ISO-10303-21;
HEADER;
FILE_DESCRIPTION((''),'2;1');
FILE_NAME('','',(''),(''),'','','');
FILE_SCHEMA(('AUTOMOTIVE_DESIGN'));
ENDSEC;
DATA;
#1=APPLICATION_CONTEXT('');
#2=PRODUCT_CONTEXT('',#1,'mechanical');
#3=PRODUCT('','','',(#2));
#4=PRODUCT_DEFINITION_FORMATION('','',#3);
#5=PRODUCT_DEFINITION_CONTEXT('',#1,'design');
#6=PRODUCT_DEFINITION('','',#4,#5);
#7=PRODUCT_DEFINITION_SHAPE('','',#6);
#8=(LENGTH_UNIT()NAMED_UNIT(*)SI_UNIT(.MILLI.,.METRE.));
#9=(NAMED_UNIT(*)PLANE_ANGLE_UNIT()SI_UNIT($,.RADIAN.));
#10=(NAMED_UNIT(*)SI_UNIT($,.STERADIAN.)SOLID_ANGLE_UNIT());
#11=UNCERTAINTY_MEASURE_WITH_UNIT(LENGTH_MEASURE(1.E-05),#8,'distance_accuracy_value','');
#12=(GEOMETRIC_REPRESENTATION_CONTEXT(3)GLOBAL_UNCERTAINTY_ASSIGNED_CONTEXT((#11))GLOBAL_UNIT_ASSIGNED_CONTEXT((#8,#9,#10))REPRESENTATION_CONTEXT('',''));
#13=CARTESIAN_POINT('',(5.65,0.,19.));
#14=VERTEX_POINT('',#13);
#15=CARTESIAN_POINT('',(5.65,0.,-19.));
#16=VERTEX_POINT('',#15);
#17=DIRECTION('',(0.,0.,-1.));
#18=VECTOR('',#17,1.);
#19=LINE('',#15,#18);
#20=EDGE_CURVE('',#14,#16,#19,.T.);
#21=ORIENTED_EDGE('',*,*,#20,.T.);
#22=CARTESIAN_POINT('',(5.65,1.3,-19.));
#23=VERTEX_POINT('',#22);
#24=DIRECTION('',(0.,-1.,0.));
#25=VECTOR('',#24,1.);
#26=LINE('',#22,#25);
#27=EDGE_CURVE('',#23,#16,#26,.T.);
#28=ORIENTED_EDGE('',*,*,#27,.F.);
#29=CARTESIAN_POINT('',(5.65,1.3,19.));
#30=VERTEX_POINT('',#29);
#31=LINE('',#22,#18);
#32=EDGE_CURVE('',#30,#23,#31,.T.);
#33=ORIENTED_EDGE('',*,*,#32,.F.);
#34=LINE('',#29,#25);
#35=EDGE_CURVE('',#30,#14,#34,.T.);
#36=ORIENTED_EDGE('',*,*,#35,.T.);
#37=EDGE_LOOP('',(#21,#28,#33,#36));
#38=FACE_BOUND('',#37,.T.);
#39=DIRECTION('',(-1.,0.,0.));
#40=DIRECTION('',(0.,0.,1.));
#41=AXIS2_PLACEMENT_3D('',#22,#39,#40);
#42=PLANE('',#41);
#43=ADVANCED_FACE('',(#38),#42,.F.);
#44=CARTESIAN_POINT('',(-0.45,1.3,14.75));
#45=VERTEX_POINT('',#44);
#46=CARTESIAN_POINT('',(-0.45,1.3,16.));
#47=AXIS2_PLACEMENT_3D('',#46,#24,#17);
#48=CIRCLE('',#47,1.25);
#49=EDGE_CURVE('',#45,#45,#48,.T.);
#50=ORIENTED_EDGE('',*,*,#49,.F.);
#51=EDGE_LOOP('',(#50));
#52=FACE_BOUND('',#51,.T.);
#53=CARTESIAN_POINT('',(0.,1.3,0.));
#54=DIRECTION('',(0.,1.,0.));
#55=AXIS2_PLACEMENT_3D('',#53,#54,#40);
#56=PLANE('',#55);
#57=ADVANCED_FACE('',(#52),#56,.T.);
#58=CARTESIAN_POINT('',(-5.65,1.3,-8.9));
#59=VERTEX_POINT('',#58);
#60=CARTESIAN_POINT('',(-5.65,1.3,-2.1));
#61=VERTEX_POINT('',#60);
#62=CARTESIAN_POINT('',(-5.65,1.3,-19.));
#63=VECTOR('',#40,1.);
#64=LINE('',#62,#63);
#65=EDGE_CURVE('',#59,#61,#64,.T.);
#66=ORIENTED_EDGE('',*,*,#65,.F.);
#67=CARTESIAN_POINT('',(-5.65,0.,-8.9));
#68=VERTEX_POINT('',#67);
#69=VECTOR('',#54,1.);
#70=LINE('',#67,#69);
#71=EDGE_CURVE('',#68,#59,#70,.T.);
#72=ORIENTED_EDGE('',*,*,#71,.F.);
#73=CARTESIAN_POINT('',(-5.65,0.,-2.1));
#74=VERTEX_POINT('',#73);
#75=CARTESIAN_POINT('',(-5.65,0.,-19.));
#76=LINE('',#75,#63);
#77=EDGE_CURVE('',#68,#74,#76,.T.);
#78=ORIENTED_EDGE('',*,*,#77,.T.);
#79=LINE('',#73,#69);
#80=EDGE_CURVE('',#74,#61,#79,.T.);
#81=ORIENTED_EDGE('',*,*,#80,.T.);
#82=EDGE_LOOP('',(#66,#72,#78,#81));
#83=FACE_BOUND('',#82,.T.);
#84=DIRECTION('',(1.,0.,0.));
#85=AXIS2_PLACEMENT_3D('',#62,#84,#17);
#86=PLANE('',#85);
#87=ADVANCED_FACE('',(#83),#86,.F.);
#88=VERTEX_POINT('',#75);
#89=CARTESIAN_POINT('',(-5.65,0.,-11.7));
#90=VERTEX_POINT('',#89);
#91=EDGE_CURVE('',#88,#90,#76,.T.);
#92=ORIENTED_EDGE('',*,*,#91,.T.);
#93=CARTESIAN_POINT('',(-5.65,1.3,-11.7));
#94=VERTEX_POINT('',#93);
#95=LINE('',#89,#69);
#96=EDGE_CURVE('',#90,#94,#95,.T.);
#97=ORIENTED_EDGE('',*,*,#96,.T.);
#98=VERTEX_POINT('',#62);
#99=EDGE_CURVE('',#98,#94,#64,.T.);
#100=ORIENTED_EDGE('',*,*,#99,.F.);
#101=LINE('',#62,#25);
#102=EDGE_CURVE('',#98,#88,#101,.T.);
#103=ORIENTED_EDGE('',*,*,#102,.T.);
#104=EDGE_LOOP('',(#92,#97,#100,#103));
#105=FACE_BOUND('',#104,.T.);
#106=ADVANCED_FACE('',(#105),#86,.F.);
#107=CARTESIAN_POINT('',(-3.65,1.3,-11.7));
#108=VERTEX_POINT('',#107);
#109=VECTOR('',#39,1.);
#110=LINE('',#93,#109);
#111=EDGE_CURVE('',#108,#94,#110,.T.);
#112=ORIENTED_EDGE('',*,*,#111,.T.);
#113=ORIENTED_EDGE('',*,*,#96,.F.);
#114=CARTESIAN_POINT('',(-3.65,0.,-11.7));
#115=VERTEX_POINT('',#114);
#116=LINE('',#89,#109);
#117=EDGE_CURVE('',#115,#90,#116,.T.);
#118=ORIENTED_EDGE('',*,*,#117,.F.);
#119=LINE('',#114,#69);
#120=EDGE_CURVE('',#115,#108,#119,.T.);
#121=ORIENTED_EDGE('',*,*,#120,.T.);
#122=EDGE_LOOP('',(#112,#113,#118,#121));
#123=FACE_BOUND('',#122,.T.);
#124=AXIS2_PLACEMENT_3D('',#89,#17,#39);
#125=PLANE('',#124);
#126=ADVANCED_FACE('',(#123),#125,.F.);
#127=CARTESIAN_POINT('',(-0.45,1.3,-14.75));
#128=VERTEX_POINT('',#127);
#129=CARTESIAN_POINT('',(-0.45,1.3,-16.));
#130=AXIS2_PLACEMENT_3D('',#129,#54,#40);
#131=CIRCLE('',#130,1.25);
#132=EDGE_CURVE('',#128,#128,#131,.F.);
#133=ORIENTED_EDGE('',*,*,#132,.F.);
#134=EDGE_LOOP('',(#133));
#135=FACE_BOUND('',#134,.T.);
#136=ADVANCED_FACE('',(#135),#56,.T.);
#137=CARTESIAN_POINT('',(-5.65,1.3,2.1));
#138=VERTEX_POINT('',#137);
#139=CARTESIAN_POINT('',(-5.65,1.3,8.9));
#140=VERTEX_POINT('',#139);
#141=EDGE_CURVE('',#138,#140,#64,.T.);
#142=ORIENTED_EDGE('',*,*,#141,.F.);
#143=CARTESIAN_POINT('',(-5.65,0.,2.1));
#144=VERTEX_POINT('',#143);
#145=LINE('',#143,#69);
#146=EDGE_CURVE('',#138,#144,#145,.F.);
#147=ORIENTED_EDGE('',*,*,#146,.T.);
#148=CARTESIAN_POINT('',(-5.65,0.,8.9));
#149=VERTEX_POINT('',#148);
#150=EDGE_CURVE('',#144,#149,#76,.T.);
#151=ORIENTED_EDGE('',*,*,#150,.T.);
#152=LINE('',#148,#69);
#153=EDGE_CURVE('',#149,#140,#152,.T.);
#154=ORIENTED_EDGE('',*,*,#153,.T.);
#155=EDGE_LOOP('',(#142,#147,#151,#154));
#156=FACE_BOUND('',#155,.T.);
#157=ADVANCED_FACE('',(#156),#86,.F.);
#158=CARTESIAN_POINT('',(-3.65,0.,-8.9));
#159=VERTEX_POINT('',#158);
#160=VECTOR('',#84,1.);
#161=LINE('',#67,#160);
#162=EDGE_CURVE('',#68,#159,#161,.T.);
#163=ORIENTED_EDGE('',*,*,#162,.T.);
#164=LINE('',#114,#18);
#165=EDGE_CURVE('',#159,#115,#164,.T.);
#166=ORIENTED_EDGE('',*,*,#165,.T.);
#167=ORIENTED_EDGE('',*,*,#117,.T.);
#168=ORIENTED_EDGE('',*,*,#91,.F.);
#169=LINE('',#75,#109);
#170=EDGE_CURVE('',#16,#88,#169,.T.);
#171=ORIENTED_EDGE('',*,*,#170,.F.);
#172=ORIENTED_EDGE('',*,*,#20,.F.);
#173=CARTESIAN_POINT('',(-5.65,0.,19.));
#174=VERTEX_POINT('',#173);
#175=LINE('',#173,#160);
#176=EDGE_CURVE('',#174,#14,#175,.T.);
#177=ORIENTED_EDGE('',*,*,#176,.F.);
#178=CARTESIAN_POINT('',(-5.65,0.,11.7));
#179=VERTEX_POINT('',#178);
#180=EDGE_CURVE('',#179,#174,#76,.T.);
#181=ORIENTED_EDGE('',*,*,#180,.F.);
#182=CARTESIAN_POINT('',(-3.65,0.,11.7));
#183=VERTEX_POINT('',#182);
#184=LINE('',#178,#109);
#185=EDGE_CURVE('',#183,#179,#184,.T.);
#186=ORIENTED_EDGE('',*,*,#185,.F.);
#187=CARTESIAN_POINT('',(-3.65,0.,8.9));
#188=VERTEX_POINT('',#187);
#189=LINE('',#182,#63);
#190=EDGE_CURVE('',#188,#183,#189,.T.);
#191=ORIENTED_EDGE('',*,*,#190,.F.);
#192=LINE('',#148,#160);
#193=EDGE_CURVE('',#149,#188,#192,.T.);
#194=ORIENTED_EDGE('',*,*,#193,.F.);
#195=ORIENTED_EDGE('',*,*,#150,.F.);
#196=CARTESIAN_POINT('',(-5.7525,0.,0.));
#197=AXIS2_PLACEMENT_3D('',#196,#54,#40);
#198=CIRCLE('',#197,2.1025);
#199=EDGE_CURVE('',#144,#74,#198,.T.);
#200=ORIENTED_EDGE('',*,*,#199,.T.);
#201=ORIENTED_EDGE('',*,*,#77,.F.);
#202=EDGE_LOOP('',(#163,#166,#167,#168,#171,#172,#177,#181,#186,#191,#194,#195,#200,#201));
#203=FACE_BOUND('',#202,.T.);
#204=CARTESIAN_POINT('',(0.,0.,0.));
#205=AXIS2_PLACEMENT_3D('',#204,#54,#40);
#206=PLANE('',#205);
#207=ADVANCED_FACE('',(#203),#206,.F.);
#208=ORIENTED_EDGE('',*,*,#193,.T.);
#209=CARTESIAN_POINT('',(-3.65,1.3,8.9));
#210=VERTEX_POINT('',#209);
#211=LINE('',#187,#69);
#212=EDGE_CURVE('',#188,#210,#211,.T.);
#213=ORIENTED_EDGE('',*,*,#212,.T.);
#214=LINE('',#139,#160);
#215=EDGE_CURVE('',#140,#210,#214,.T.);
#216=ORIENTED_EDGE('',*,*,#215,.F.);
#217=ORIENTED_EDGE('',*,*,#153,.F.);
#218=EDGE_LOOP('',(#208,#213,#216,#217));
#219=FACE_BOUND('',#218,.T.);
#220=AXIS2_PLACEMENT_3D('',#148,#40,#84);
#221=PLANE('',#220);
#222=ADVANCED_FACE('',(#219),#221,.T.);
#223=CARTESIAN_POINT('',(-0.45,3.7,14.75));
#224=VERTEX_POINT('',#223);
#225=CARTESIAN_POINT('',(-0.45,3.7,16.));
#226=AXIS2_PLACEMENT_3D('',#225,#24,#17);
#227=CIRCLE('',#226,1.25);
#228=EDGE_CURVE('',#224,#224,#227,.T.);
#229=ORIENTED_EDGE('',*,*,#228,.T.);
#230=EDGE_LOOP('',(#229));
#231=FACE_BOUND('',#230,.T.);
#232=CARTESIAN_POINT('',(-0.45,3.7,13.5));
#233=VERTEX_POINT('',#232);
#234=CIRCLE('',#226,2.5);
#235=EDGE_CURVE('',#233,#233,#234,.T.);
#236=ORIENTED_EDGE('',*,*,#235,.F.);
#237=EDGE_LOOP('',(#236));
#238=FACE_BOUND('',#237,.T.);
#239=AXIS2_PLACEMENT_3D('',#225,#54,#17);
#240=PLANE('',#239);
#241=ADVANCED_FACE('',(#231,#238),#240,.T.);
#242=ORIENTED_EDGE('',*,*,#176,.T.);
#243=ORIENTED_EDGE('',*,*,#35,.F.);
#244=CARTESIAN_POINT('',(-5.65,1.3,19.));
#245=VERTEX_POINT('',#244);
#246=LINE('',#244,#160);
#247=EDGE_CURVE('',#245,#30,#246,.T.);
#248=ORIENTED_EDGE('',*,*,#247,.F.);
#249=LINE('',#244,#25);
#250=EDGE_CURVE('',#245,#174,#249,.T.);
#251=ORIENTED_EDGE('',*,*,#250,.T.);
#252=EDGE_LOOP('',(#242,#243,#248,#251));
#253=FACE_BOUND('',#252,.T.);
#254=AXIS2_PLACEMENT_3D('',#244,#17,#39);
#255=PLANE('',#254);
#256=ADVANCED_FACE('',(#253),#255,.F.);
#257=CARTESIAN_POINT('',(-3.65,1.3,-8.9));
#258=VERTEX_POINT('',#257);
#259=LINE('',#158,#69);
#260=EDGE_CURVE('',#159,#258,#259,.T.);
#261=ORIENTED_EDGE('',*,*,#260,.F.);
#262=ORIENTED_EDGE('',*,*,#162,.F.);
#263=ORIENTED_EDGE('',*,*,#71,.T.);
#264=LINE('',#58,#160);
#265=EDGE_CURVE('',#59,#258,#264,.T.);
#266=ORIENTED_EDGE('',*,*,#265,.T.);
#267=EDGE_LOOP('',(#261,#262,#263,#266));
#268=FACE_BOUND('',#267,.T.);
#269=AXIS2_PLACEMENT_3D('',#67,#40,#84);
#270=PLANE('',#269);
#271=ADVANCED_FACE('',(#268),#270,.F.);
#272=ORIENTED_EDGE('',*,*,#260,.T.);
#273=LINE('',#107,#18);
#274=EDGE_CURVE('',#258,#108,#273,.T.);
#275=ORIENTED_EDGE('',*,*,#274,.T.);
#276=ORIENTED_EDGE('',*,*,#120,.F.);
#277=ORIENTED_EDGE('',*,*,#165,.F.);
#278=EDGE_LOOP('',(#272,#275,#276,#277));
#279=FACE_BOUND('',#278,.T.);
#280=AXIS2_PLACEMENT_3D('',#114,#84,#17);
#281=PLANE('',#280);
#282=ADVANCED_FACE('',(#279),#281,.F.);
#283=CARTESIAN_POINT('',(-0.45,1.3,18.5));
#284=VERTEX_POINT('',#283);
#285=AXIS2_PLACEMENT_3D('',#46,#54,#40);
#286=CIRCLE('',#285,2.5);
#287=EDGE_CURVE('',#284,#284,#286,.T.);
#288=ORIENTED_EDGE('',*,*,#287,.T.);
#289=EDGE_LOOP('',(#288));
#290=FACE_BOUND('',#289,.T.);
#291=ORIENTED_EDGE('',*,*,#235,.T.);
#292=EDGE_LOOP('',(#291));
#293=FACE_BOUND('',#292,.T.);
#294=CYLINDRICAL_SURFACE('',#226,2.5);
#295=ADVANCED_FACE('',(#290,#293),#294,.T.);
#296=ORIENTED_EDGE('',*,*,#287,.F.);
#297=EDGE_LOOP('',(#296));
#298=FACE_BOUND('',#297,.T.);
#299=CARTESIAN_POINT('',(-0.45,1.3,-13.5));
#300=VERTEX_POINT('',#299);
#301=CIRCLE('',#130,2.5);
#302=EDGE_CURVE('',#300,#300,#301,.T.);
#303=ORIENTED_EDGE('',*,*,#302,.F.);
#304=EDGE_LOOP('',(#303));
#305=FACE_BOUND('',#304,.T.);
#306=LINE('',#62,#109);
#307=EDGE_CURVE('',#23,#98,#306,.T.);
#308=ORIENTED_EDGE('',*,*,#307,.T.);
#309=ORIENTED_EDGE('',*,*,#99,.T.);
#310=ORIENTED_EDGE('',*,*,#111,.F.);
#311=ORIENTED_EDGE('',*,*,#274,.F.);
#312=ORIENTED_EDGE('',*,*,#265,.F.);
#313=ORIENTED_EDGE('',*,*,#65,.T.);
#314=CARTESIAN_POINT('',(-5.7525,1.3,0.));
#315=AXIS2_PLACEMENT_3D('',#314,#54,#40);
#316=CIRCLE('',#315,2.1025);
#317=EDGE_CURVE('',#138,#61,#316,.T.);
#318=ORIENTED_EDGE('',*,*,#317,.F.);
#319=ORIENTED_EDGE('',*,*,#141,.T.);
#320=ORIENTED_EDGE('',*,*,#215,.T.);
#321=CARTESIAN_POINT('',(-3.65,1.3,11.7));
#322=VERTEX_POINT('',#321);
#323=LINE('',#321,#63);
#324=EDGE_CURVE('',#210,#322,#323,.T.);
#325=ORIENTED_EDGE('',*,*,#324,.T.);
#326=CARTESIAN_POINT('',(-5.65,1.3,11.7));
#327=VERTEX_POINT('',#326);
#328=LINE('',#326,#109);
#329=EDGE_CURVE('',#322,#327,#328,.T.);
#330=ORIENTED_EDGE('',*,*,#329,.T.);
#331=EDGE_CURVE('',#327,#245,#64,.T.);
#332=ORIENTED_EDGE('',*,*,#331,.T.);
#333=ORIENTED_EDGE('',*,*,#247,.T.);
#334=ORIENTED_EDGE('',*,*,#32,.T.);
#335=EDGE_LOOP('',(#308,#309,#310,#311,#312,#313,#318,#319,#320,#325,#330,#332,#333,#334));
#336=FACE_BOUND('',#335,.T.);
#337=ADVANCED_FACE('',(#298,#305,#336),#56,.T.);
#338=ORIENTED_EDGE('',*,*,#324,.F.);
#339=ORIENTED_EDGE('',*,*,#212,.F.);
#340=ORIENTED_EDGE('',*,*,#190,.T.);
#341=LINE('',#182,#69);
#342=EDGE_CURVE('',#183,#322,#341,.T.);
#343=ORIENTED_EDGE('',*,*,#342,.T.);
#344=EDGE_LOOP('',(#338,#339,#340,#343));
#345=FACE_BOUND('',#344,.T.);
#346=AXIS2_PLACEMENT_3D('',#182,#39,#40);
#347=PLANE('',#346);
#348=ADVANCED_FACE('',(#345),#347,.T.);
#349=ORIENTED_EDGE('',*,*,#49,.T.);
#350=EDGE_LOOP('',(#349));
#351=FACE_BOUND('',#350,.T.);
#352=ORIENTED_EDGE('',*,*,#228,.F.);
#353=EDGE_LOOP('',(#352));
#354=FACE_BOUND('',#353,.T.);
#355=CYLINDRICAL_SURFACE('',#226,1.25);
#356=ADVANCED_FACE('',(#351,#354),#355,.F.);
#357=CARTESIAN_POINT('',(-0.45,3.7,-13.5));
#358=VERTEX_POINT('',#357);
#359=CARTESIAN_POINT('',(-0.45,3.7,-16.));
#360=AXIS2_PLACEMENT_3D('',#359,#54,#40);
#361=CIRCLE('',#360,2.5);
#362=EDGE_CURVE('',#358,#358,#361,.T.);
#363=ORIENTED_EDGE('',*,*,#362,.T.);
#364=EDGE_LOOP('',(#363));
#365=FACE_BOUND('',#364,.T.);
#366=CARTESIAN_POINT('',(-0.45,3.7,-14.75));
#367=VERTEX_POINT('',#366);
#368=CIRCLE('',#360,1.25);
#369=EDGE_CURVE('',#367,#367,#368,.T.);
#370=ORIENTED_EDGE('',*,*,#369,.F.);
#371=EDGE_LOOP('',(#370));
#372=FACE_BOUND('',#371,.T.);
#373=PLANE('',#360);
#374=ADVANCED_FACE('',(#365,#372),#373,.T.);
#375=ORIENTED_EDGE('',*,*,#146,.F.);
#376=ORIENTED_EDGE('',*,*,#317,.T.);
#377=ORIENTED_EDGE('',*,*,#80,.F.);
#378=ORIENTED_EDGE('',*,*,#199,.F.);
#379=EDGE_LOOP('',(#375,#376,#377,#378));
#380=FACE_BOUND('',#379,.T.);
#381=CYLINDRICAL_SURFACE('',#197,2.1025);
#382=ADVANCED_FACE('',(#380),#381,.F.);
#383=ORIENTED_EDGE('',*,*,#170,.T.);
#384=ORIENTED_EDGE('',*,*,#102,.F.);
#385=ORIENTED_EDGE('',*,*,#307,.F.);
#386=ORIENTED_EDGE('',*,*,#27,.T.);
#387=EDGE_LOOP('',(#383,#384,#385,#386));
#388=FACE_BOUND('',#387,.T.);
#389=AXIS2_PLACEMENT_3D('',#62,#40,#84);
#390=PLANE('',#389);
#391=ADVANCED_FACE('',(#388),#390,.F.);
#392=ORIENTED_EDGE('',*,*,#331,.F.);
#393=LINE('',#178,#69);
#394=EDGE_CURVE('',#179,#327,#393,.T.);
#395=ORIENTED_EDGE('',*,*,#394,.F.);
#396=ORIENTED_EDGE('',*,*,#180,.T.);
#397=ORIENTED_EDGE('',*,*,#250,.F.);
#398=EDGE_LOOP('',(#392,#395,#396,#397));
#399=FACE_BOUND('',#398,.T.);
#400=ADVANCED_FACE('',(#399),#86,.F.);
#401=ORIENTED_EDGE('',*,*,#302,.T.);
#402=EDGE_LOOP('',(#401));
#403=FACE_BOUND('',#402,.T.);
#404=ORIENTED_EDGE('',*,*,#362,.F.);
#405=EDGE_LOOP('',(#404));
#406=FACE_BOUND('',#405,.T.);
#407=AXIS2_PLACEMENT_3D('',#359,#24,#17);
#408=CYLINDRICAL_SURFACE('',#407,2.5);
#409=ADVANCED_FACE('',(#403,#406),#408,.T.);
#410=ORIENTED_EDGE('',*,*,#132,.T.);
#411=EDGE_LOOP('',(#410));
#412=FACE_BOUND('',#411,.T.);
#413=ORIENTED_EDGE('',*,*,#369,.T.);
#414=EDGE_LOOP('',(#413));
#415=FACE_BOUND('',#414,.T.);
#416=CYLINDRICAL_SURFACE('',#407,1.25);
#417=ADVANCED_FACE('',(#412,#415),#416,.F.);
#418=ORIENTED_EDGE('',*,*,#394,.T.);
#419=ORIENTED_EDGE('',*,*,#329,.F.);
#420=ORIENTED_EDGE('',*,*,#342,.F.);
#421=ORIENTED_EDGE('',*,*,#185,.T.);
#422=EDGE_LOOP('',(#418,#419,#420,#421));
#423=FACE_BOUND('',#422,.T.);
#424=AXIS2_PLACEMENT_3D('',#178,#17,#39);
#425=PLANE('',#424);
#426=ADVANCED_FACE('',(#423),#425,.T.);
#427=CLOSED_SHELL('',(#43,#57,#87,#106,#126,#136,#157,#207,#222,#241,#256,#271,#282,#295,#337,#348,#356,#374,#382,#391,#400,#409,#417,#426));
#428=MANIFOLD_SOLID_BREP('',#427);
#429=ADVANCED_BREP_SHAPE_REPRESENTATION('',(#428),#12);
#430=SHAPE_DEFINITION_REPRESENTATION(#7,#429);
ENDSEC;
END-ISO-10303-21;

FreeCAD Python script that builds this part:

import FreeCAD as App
import Part
import Sketcher

V = App.Vector

doc = App.newDocument("Part")
params = doc.addObject("Spreadsheet::Sheet", "Params")
for row, (alias, value) in enumerate([
    ("sketch1_height", "38 mm"),
    ("sketch1_width", "11.3 mm"),
    ("pad1_length", "1.3 mm"),
    ("sketch2_width", "2 mm"),
    ("sketch2_height", "2.8 mm"),
    ("sketch4_diameter", "5 mm"),
    ("sketch4_diameter2", "2.5 mm"),
    ("pad2_length", "2.4 mm"),
], start=1):
    params.set(f"A{row}", alias)
    params.set(f"B{row}", "=" + value)
    params.setAlias(f"B{row}", alias)

body = doc.addObject("PartDesign::Body", "Body")

# Sketch on XZ plane
sketch1 = body.newObject("Sketcher::SketchObject", "Sketch")
sketch1.AttachmentSupport = (doc.getObject("XZ_Plane"), [""])
sketch1.MapMode = "FlatFace"
sketch1.addGeometry([
    Part.LineSegment(V(-6, -19, 0), V(-6, 19, 0)),
    Part.LineSegment(V(-6, 19, 0), V(6, 19, 0)),
    Part.LineSegment(V(6, 19, 0), V(6, -19, 0)),
    Part.LineSegment(V(6, -19, 0), V(-6, -19, 0)),
], False)
sketch1.addConstraint([
    Sketcher.Constraint("Coincident", 0, 2, 1, 1),
    Sketcher.Constraint("Coincident", 1, 2, 2, 1),
    Sketcher.Constraint("Coincident", 2, 2, 3, 1),
    Sketcher.Constraint("Coincident", 3, 2, 0, 1),
    Sketcher.Constraint("Vertical", 0),
    Sketcher.Constraint("Horizontal", 1),
    Sketcher.Constraint("Vertical", 2),
    Sketcher.Constraint("Horizontal", 3),
    Sketcher.Constraint("Symmetric", 0, 2, 2, 2, -1, 1),
    Sketcher.Constraint("DistanceY", 0, 1, 0, 2, 38.0),
    Sketcher.Constraint("DistanceX", 1, 1, 1, 2, 11.3),
])
sketch1.setExpression("Constraints[9]", "Params.sketch1_height")
sketch1.setExpression("Constraints[10]", "Params.sketch1_width")
pad1 = body.newObject("PartDesign::Pad", "Pad")
pad1.Profile = sketch1
pad1.setExpression("Length", "Params.pad1_length")
pad1.Reversed = True

# Sketch on XZ plane
sketch2 = body.newObject("Sketcher::SketchObject", "Sketch001")
sketch2.AttachmentSupport = (doc.getObject("XZ_Plane"), [""])
sketch2.MapMode = "FlatFace"
sketch2.AttachmentOffset = App.Placement(V(0, 0, -1.3), App.Rotation())
sketch2.addGeometry([
    Part.LineSegment(V(-5.7, -11.7, 0), V(-5.7, -8.9, 0)),
    Part.LineSegment(V(-5.7, -8.9, 0), V(-3.6, -8.9, 0)),
    Part.LineSegment(V(-3.6, -8.9, 0), V(-3.6, -11.7, 0)),
    Part.LineSegment(V(-3.6, -11.7, 0), V(-5.7, -11.7, 0)),
], False)
sketch2.addConstraint([
    Sketcher.Constraint("Coincident", 0, 2, 1, 1),
    Sketcher.Constraint("Coincident", 1, 2, 2, 1),
    Sketcher.Constraint("Coincident", 2, 2, 3, 1),
    Sketcher.Constraint("Coincident", 3, 2, 0, 1),
    Sketcher.Constraint("Vertical", 0),
    Sketcher.Constraint("Horizontal", 1),
    Sketcher.Constraint("Vertical", 2),
    Sketcher.Constraint("Horizontal", 3),
    Sketcher.Constraint("DistanceX", 1, 1, 1, 2, 2.0),
    Sketcher.Constraint("DistanceY", 0, 1, 0, 2, 2.8),
    Sketcher.Constraint("DistanceY", 0, 2, -1, 1, 8.9),
    Sketcher.Constraint("DistanceX", 0, 2, -1, 1, 5.65),
])
sketch2.setExpression("Constraints[8]", "Params.sketch2_width")
sketch2.setExpression("Constraints[9]", "Params.sketch2_height")
pocket1 = body.newObject("PartDesign::Pocket", "Pocket")
pocket1.Profile = sketch2
pocket1.Type = "ThroughAll"
pocket1.Reversed = True
doc.recompute()

mirrored = body.newObject("PartDesign::Mirrored", "Mirrored")
mirrored.Originals = [pocket1]
mirrored.MirrorPlane = (doc.getObject("XY_Plane"), [""])
body.Tip = mirrored

# Sketch on XZ plane
sketch3 = body.newObject("Sketcher::SketchObject", "Sketch002")
sketch3.AttachmentSupport = (doc.getObject("XZ_Plane"), [""])
sketch3.MapMode = "FlatFace"
sketch3.AttachmentOffset = App.Placement(V(0, 0, -1.3), App.Rotation())
sketch3.addGeometry(Part.Circle(V(-5.8, 0, 0), V(0, 0, 1), 2.1), False)
sketch3.addConstraint([
    Sketcher.Constraint("PointOnObject", 0, 3, -1),
    Sketcher.Constraint("Diameter", 0, 4.205),
    Sketcher.Constraint("DistanceX", 0, 3, -1, 1, 5.7525),
])
pocket2 = body.newObject("PartDesign::Pocket", "Pocket001")
pocket2.Profile = sketch3
pocket2.Type = "ThroughAll"
pocket2.Reversed = True

# Sketch on XZ plane
sketch4 = body.newObject("Sketcher::SketchObject", "Sketch003")
sketch4.AttachmentSupport = (doc.getObject("XZ_Plane"), [""])
sketch4.MapMode = "FlatFace"
sketch4.AttachmentOffset = App.Placement(V(0, 0, -1.3), App.Rotation())
sketch4.addGeometry([
    Part.Circle(V(-0.5, -16, 0), V(0, 0, 1), 2.5),
    Part.Circle(V(-0.5, -16, 0), V(0, 0, 1), 1.2),
], False)
sketch4.addConstraint([
    Sketcher.Constraint("Coincident", 1, 3, 0, 3),
    Sketcher.Constraint("Diameter", 0, 5.0),
    Sketcher.Constraint("Diameter", 1, 2.5),
    Sketcher.Constraint("DistanceY", 0, 3, -1, 1, 16.0),
    Sketcher.Constraint("DistanceX", 0, 3, -1, 1, 0.45),
])
sketch4.setExpression("Constraints[1]", "Params.sketch4_diameter")
sketch4.setExpression("Constraints[2]", "Params.sketch4_diameter2")
pad2 = body.newObject("PartDesign::Pad", "Pad001")
pad2.Profile = sketch4
pad2.setExpression("Length", "Params.pad2_length")
pad2.Reversed = True
doc.recompute()

mirrored2 = body.newObject("PartDesign::Mirrored", "Mirrored001")
mirrored2.Originals = [pad2]
mirrored2.MirrorPlane = (doc.getObject("XY_Plane"), [""])
body.Tip = mirrored2

doc.recompute()
